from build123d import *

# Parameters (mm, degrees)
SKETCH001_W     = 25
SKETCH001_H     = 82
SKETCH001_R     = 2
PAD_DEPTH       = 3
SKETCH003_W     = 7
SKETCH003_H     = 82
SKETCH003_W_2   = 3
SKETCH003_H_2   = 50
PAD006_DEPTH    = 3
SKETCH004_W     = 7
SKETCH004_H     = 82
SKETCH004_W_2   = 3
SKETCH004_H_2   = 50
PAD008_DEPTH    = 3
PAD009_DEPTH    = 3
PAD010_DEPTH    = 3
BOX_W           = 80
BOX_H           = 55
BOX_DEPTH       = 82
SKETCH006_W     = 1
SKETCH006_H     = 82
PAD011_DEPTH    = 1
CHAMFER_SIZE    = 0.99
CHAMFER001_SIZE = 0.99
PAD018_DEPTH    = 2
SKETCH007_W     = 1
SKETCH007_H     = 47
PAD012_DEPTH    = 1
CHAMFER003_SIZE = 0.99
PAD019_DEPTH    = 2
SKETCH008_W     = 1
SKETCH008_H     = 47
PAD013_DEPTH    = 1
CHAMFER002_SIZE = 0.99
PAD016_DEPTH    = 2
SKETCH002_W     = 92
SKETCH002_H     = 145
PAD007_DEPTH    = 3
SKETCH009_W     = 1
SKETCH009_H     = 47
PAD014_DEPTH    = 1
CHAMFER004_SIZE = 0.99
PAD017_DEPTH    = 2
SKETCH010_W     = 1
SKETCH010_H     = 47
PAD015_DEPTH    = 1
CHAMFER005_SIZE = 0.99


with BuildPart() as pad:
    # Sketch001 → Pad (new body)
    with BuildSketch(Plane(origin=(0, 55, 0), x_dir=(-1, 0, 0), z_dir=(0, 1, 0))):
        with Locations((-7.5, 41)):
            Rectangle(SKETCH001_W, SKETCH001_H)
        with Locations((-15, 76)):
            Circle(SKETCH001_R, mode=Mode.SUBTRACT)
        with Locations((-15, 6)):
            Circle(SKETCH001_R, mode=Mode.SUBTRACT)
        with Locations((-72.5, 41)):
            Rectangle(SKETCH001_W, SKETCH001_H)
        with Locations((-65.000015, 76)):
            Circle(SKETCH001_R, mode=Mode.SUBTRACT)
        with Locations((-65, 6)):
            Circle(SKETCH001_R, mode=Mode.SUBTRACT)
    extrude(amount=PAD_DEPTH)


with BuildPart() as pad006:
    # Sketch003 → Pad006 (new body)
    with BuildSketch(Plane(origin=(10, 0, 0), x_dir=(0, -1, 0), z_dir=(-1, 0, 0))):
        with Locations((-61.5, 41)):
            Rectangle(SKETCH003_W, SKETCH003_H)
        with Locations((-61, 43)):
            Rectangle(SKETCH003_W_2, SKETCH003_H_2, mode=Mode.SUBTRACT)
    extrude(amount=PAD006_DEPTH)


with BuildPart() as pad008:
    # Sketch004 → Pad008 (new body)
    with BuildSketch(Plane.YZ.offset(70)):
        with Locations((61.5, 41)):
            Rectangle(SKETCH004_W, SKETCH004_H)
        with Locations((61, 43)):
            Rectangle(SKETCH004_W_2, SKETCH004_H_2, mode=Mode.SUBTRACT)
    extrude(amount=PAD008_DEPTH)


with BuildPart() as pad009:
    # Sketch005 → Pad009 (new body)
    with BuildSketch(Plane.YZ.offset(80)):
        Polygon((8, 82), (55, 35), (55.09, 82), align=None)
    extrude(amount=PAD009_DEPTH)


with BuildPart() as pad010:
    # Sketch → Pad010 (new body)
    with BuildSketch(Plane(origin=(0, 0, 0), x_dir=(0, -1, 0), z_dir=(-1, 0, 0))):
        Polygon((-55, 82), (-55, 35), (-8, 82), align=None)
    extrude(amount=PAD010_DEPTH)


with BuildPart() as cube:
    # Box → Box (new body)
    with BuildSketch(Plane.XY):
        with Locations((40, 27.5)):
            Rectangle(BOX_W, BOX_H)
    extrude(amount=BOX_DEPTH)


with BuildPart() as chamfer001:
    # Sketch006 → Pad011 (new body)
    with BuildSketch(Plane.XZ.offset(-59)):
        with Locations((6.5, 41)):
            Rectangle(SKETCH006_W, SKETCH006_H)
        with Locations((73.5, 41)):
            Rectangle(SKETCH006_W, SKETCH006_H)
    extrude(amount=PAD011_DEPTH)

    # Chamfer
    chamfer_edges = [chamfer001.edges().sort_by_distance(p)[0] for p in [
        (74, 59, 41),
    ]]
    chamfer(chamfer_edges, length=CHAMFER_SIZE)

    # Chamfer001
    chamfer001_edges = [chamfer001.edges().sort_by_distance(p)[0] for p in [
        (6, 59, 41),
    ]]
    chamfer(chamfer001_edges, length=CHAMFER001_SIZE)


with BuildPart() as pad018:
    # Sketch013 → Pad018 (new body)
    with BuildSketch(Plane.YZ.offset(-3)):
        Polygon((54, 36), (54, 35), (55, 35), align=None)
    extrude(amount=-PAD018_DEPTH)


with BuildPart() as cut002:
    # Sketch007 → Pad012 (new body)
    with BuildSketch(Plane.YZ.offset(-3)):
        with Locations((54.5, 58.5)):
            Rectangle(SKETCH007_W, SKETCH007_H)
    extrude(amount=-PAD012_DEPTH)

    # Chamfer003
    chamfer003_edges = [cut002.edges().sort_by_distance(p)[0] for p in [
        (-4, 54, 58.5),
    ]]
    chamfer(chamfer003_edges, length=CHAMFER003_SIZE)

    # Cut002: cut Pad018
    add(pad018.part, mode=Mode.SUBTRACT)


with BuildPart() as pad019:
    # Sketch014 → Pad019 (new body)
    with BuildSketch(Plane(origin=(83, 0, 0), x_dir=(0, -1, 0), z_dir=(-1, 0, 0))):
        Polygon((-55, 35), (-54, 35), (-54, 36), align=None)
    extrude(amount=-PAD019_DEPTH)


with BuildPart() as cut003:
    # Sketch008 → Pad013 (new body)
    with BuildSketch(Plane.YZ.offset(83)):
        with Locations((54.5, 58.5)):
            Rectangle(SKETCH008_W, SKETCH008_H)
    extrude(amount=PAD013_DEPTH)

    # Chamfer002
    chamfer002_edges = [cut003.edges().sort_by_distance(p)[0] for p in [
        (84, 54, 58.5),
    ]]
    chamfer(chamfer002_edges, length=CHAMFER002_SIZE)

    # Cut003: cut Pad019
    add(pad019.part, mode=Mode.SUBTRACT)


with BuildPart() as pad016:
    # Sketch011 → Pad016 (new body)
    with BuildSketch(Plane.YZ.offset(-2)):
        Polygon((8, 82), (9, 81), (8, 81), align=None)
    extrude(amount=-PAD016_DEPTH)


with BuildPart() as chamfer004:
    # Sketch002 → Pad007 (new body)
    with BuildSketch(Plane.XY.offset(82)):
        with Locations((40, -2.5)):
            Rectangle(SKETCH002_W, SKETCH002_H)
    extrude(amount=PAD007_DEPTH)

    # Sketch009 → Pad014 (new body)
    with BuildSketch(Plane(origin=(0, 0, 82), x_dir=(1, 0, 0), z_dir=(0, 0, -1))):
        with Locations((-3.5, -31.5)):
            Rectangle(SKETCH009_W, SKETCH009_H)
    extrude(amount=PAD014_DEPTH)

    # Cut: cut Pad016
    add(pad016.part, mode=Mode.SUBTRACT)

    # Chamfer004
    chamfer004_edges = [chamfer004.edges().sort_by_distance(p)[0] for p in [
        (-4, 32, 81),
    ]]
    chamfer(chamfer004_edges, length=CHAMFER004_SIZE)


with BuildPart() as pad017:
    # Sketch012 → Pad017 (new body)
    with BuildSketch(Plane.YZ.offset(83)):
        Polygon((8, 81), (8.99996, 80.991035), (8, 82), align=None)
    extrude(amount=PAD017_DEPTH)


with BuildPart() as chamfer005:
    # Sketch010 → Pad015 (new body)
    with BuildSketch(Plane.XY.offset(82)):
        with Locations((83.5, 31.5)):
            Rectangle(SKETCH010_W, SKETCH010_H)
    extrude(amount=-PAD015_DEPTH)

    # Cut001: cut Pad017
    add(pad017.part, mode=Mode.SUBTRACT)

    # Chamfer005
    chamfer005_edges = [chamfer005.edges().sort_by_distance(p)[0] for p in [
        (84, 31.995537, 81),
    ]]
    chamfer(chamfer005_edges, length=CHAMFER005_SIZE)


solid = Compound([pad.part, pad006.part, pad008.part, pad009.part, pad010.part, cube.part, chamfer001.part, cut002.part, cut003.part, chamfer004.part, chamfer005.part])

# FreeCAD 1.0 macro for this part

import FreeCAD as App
import Part
import Sketcher

V = App.Vector
Q = App.Units.Quantity


def edges_at(feature, points):
    """Names of the edges that pass closest to the given points."""
    edges = feature.Shape.Edges
    near = lambda p: min(range(len(edges)), key=lambda i: edges[i].distToShape(Part.Vertex(*p))[0])
    return sorted({f"Edge{near(p) + 1}" for p in points})


def add_polygon(sketch, points):
    """Adds a closed chain of lines whose ends are joined by coincident constraints."""
    first, n = sketch.GeometryCount, len(points)
    for a, b in zip(points, points[1:] + points[:1]):
        sketch.addGeometry(Part.LineSegment(App.Vector(*a, 0), App.Vector(*b, 0)), False)
    for i in range(n):
        sketch.addConstraint(Sketcher.Constraint("Coincident", first + i, 2, first + (i + 1) % n, 1))

doc = App.newDocument("Part")
body = doc.addObject("PartDesign::Body", "Body")
body.AllowCompound = True

sketch1 = body.newObject("Sketcher::SketchObject", "Sketch")
sketch1.AttachmentSupport = (doc.getObject("XZ_Plane"), [""])
sketch1.MapMode = "FlatFace"
sketch1.AttachmentOffset = App.Placement(V(0, 0, -55), App.Rotation())
add_polygon(sketch1, [(20, 82), (20, 0), (-5, 0), (-5, 82)])
sketch1.addGeometry(Part.Circle(V(15, 6, 0), V(0, 0, 1), 2), False)
sketch1.addGeometry(Part.Circle(V(15, 76, 0), V(0, 0, 1), 2), False)
add_polygon(sketch1, [(85, 82), (85, 0), (60, 0), (60, 82)])
sketch1.addGeometry(Part.Circle(V(65, 6, 0), V(0, 0, 1), 2), False)
sketch1.addGeometry(Part.Circle(V(65, 76, 0), V(0, 0, 1), 2), False)
sketch1.addConstraint([
    Sketcher.Constraint("Vertical", 0),
    Sketcher.Constraint("Horizontal", 1),
    Sketcher.Constraint("Vertical", 2),
    Sketcher.Constraint("Horizontal", 3),
    Sketcher.Constraint("Vertical", 6),
    Sketcher.Constraint("Horizontal", 7),
    Sketcher.Constraint("Vertical", 8),
    Sketcher.Constraint("Horizontal", 9),
    Sketcher.Constraint("Equal", 4, 5),
    Sketcher.Constraint("Equal", 5, 10),
    Sketcher.Constraint("Equal", 10, 11),
    Sketcher.Constraint("PointOnObject", 0, 2, -1),
    Sketcher.Constraint("PointOnObject", 6, 2, -1),
    Sketcher.Constraint("Horizontal", 4, 3, 10, 3),
    Sketcher.Constraint("Horizontal", 5, 3, 11, 3),
    Sketcher.Constraint("Horizontal", 3, 2, 8, 2),
    Sketcher.Constraint("Vertical", 4, 3, 5, 3),
    Sketcher.Constraint("Equal", 3, 7),
    Sketcher.Constraint("Diameter", 4, 4.0),
    Sketcher.Constraint("DistanceX", 1, 2, 1, 1, 25.0),
    Sketcher.Constraint("DistanceY", 0, 2, 0, 1, 82.0),
    Sketcher.Constraint("DistanceX", -1, 1, 4, 3, 15.0),
    Sketcher.Constraint("DistanceY", -1, 1, 4, 3, 6.0),
    Sketcher.Constraint("DistanceY", -1, 1, 5, 3, 76.0),
    Sketcher.Constraint("DistanceX", -1, 1, 10, 3, 65.0),
    Sketcher.Constraint("DistanceX", -1, 1, 0, 2, 20.0),
    Sketcher.Constraint("DistanceX", -1, 1, 6, 2, 85.0),
    Sketcher.Constraint("DistanceX", -1, 1, 11, 3, 65.000015),
])
pad1 = body.newObject("PartDesign::Pad", "Pad")
pad1.Profile = sketch1
pad1.Length = 3
pad1.Reversed = True
body2 = doc.addObject("PartDesign::Body", "Body001")

sketch2 = body2.newObject("Sketcher::SketchObject", "Sketch001")
sketch2.AttachmentSupport = (doc.getObject("YZ_Plane001"), [""])
sketch2.MapMode = "FlatFace"
sketch2.AttachmentOffset = App.Placement(V(0, 0, 10), App.Rotation())
add_polygon(sketch2, [(65, 82), (65, 0), (58, 0), (58, 82)])
add_polygon(sketch2, [(59.5, 18), (62.5, 18), (62.5, 68), (59.5, 68)])
sketch2.addConstraint([
    Sketcher.Constraint("Vertical", 0),
    Sketcher.Constraint("Horizontal", 1),
    Sketcher.Constraint("Vertical", 2),
    Sketcher.Constraint("Horizontal", 3),
    Sketcher.Constraint("Horizontal", 4),
    Sketcher.Constraint("Vertical", 5),
    Sketcher.Constraint("Horizontal", 6),
    Sketcher.Constraint("Vertical", 7),
    Sketcher.Constraint("PointOnObject", 0, 2, -1),
    Sketcher.Constraint("DistanceX", 1, 2, 1, 1, 7.0),
    Sketcher.Constraint("DistanceX", 4, 1, 4, 2, 3.0),
    Sketcher.Constraint("DistanceY", 0, 2, 0, 1, 82.0),
    Sketcher.Constraint("DistanceY", 5, 1, 5, 2, 50.0),
    Sketcher.Constraint("DistanceX", -1, 1, 0, 2, 65.0),
    Sketcher.Constraint("DistanceY", -1, 1, 4, 2, 18.0),
    Sketcher.Constraint("DistanceX", -1, 1, 4, 2, 62.5),
])
pad2 = body2.newObject("PartDesign::Pad", "Pad001")
pad2.Profile = sketch2
pad2.Length = 3
pad2.Reversed = True
body3 = doc.addObject("PartDesign::Body", "Body002")

sketch3 = body3.newObject("Sketcher::SketchObject", "Sketch002")
sketch3.AttachmentSupport = (doc.getObject("YZ_Plane002"), [""])
sketch3.MapMode = "FlatFace"
sketch3.AttachmentOffset = App.Placement(V(0, 0, 70), App.Rotation())
add_polygon(sketch3, [(58, 82), (58, 0), (65, 0), (65, 82)])
add_polygon(sketch3, [(62.5, 18), (59.5, 18), (59.5, 68), (62.5, 68)])
sketch3.addConstraint([
    Sketcher.Constraint("Vertical", 0),
    Sketcher.Constraint("Horizontal", 1),
    Sketcher.Constraint("Vertical", 2),
    Sketcher.Constraint("Horizontal", 3),
    Sketcher.Constraint("Horizontal", 4),
    Sketcher.Constraint("Vertical", 5),
    Sketcher.Constraint("Horizontal", 6),
    Sketcher.Constraint("Vertical", 7),
    Sketcher.Constraint("PointOnObject", 0, 2, -1),
    Sketcher.Constraint("DistanceX", 1, 1, 1, 2, 7.0),
    Sketcher.Constraint("DistanceX", 4, 2, 4, 1, 3.0),
    Sketcher.Constraint("DistanceY", 0, 2, 0, 1, 82.0),
    Sketcher.Constraint("DistanceY", 5, 1, 5, 2, 50.0),
    Sketcher.Constraint("DistanceX", -1, 1, 0, 2, 58.0),
    Sketcher.Constraint("DistanceY", -1, 1, 4, 2, 18.0),
    Sketcher.Constraint("DistanceX", -1, 1, 4, 2, 59.5),
])
pad3 = body3.newObject("PartDesign::Pad", "Pad002")
pad3.Profile = sketch3
pad3.Length = 3
body4 = doc.addObject("PartDesign::Body", "Body003")

sketch4 = body4.newObject("Sketcher::SketchObject", "Sketch003")
sketch4.AttachmentSupport = (doc.getObject("YZ_Plane003"), [""])
sketch4.MapMode = "FlatFace"
sketch4.AttachmentOffset = App.Placement(V(0, 0, 80), App.Rotation())
add_polygon(sketch4, [(8, 82), (55, 35), (55, 82)])
sketch4.addConstraint([
    Sketcher.Constraint("Horizontal", 2),
    Sketcher.Constraint("Angle", 0, Q("-45 deg")),
    Sketcher.Constraint("DistanceX", -1, 1, 0, 2, 55.0),
    Sketcher.Constraint("DistanceY", -1, 1, 0, 2, 35.0),
    Sketcher.Constraint("DistanceY", -1, 1, 1, 2, 82.0),
    Sketcher.Constraint("DistanceX", 2, 2, 2, 1, 47.09),
])
pad4 = body4.newObject("PartDesign::Pad", "Pad003")
pad4.Profile = sketch4
pad4.Length = 3
body5 = doc.addObject("PartDesign::Body", "Body004")

sketch5 = body5.newObject("Sketcher::SketchObject", "Sketch004")
sketch5.AttachmentSupport = (doc.getObject("YZ_Plane004"), [""])
sketch5.MapMode = "FlatFace"
add_polygon(sketch5, [(55, 82), (55, 35), (8, 82)])
sketch5.addConstraint([
    Sketcher.Constraint("Vertical", 0),
    Sketcher.Constraint("Horizontal", 2),
    Sketcher.Constraint("Equal", 2, 0),
    Sketcher.Constraint("DistanceX", 2, 1, 2, 2, 47.0),
    Sketcher.Constraint("DistanceX", -1, 1, 0, 2, 55.0),
    Sketcher.Constraint("DistanceY", -1, 1, 0, 2, 35.0),
])
pad5 = body5.newObject("PartDesign::Pad", "Pad004")
pad5.Profile = sketch5
pad5.Length = 3
pad5.Reversed = True
body6 = doc.addObject("PartDesign::Body", "Body005")

sketch6 = body6.newObject("Sketcher::SketchObject", "Sketch005")
sketch6.AttachmentSupport = (doc.getObject("XY_Plane005"), [""])
sketch6.MapMode = "FlatFace"
add_polygon(sketch6, [(0, 55), (0, 0), (80, 0), (80, 55)])
sketch6.addConstraint([
    Sketcher.Constraint("Vertical", 0),
    Sketcher.Constraint("Horizontal", 1),
    Sketcher.Constraint("Vertical", 2),
    Sketcher.Constraint("Horizontal", 3),
    Sketcher.Constraint("Coincident", 0, 2, -1, 1),
    Sketcher.Constraint("DistanceX", 1, 1, 1, 2, 80.0),
    Sketcher.Constraint("DistanceY", 0, 2, 0, 1, 55.0),
])
pad6 = body6.newObject("PartDesign::Pad", "Pad005")
pad6.Profile = sketch6
pad6.Length = 82
body7 = doc.addObject("PartDesign::Body", "Body006")
body7.AllowCompound = True

sketch7 = body7.newObject("Sketcher::SketchObject", "Sketch006")
sketch7.AttachmentSupport = (doc.getObject("XZ_Plane006"), [""])
sketch7.MapMode = "FlatFace"
sketch7.AttachmentOffset = App.Placement(V(0, 0, -59), App.Rotation())
add_polygon(sketch7, [(6, 82), (6, 0), (7, 0), (7, 82)])
add_polygon(sketch7, [(73, 82), (73, 0), (74, 0), (74, 82)])
sketch7.addConstraint([
    Sketcher.Constraint("Vertical", 0),
    Sketcher.Constraint("Horizontal", 1),
    Sketcher.Constraint("Vertical", 2),
    Sketcher.Constraint("Horizontal", 3),
    Sketcher.Constraint("Vertical", 4),
    Sketcher.Constraint("Horizontal", 5),
    Sketcher.Constraint("Vertical", 6),
    Sketcher.Constraint("Horizontal", 7),
    Sketcher.Constraint("PointOnObject", 0, 2, -1),
    Sketcher.Constraint("PointOnObject", 4, 2, -1),
    Sketcher.Constraint("Horizontal", 3, 2, 6, 2),
    Sketcher.Constraint("Equal", 3, 5),
    Sketcher.Constraint("DistanceX", 1, 1, 1, 2, 1.0),
    Sketcher.Constraint("DistanceY", 0, 2, 0, 1, 82.0),
    Sketcher.Constraint("DistanceX", -1, 1, 0, 2, 6.0),
    Sketcher.Constraint("DistanceX", -1, 1, 4, 2, 73.0),
])
pad7 = body7.newObject("PartDesign::Pad", "Pad006")
pad7.Profile = sketch7
pad7.Length = 1
doc.recompute()

chamfer = body7.newObject("PartDesign::Chamfer", "Chamfer")
chamfer.Base = (pad7, edges_at(pad7, [(74, 59, 41)]))
chamfer.Size = 0.99
doc.recompute()

chamfer2 = body7.newObject("PartDesign::Chamfer", "Chamfer001")
chamfer2.Base = (chamfer, edges_at(chamfer, [(6, 59, 41)]))
chamfer2.Size = 0.99
body8 = doc.addObject("PartDesign::Body", "Body007")

sketch8 = body8.newObject("Sketcher::SketchObject", "Sketch007")
sketch8.AttachmentSupport = (doc.getObject("YZ_Plane007"), [""])
sketch8.MapMode = "FlatFace"
sketch8.AttachmentOffset = App.Placement(V(0, 0, -3), App.Rotation())
add_polygon(sketch8, [(54, 36), (54, 35), (55, 35)])
sketch8.addConstraint([
    Sketcher.Constraint("Vertical", 0),
    Sketcher.Constraint("Horizontal", 1),
    Sketcher.Constraint("Equal", 1, 0),
    Sketcher.Constraint("DistanceX", 1, 1, 1, 2, 1.0),
    Sketcher.Constraint("DistanceX", -1, 1, 0, 2, 54.0),
    Sketcher.Constraint("DistanceY", -1, 1, 0, 2, 35.0),
])
pad8 = body8.newObject("PartDesign::Pad", "Pad007")
pad8.Profile = sketch8
pad8.Length = 2
pad8.Reversed = True
body9 = doc.addObject("PartDesign::Body", "Body008")

sketch9 = body9.newObject("Sketcher::SketchObject", "Sketch008")
sketch9.AttachmentSupport = (doc.getObject("YZ_Plane008"), [""])
sketch9.MapMode = "FlatFace"
sketch9.AttachmentOffset = App.Placement(V(0, 0, -3), App.Rotation())
add_polygon(sketch9, [(54, 82), (54, 35), (55, 35), (55, 82)])
sketch9.addConstraint([
    Sketcher.Constraint("Vertical", 0),
    Sketcher.Constraint("Horizontal", 1),
    Sketcher.Constraint("Vertical", 2),
    Sketcher.Constraint("Horizontal", 3),
    Sketcher.Constraint("DistanceX", 1, 1, 1, 2, 1.0),
    Sketcher.Constraint("DistanceY", 0, 2, 0, 1, 47.0),
    Sketcher.Constraint("DistanceX", -1, 1, 0, 2, 54.0),
    Sketcher.Constraint("DistanceY", -1, 1, 0, 2, 35.0),
])
pad9 = body9.newObject("PartDesign::Pad", "Pad008")
pad9.Profile = sketch9
pad9.Length = 1
pad9.Reversed = True
doc.recompute()

chamfer3 = body9.newObject("PartDesign::Chamfer", "Chamfer002")
chamfer3.Base = (pad9, edges_at(pad9, [(-4, 54, 58.5)]))
chamfer3.Size = 0.99
doc.recompute()

boolean = body9.newObject("PartDesign::Boolean", "Boolean")
boolean.Type = "Cut"
boolean.addObjects([body8])
body10 = doc.addObject("PartDesign::Body", "Body009")

sketch10 = body10.newObject("Sketcher::SketchObject", "Sketch009")
sketch10.AttachmentSupport = (doc.getObject("YZ_Plane009"), [""])
sketch10.MapMode = "FlatFace"
sketch10.AttachmentOffset = App.Placement(V(0, 0, 83), App.Rotation())
add_polygon(sketch10, [(55, 35), (54, 35), (54, 36)])
sketch10.addConstraint([
    Sketcher.Constraint("Horizontal", 0),
    Sketcher.Constraint("Vertical", 1),
    Sketcher.Constraint("Equal", 0, 1),
    Sketcher.Constraint("DistanceX", 0, 2, 0, 1, 1.0),
    Sketcher.Constraint("DistanceX", -1, 1, 0, 2, 54.0),
    Sketcher.Constraint("DistanceY", -1, 1, 0, 2, 35.0),
])
pad10 = body10.newObject("PartDesign::Pad", "Pad009")
pad10.Profile = sketch10
pad10.Length = 2
body11 = doc.addObject("PartDesign::Body", "Body010")

sketch11 = body11.newObject("Sketcher::SketchObject", "Sketch010")
sketch11.AttachmentSupport = (doc.getObject("YZ_Plane010"), [""])
sketch11.MapMode = "FlatFace"
sketch11.AttachmentOffset = App.Placement(V(0, 0, 83), App.Rotation())
add_polygon(sketch11, [(54, 82), (54, 35), (55, 35), (55, 82)])
sketch11.addConstraint([
    Sketcher.Constraint("Vertical", 0),
    Sketcher.Constraint("Horizontal", 1),
    Sketcher.Constraint("Vertical", 2),
    Sketcher.Constraint("Horizontal", 3),
    Sketcher.Constraint("DistanceX", 1, 1, 1, 2, 1.0),
    Sketcher.Constraint("DistanceY", 0, 2, 0, 1, 47.0),
    Sketcher.Constraint("DistanceX", -1, 1, 0, 2, 54.0),
    Sketcher.Constraint("DistanceY", -1, 1, 0, 2, 35.0),
])
pad11 = body11.newObject("PartDesign::Pad", "Pad010")
pad11.Profile = sketch11
pad11.Length = 1
doc.recompute()

chamfer4 = body11.newObject("PartDesign::Chamfer", "Chamfer003")
chamfer4.Base = (pad11, edges_at(pad11, [(84, 54, 58.5)]))
chamfer4.Size = 0.99
doc.recompute()

boolean2 = body11.newObject("PartDesign::Boolean", "Boolean001")
boolean2.Type = "Cut"
boolean2.addObjects([body10])
body12 = doc.addObject("PartDesign::Body", "Body011")

sketch12 = body12.newObject("Sketcher::SketchObject", "Sketch011")
sketch12.AttachmentSupport = (doc.getObject("YZ_Plane011"), [""])
sketch12.MapMode = "FlatFace"
sketch12.AttachmentOffset = App.Placement(V(0, 0, -2), App.Rotation())
add_polygon(sketch12, [(9, 81), (8, 82), (8, 81)])
sketch12.addConstraint([
    Sketcher.Constraint("Vertical", 1),
    Sketcher.Constraint("Horizontal", 2),
    Sketcher.Constraint("Equal", 2, 1),
    Sketcher.Constraint("DistanceX", 2, 1, 2, 2, 1.0),
    Sketcher.Constraint("DistanceX", -1, 1, 0, 2, 8.0),
    Sketcher.Constraint("DistanceY", -1, 1, 0, 2, 82.0),
])
pad12 = body12.newObject("PartDesign::Pad", "Pad011")
pad12.Profile = sketch12
pad12.Length = 2
pad12.Reversed = True
body13 = doc.addObject("PartDesign::Body", "Body012")

sketch13 = body13.newObject("Sketcher::SketchObject", "Sketch012")
sketch13.AttachmentSupport = (doc.getObject("XY_Plane012"), [""])
sketch13.MapMode = "FlatFace"
sketch13.AttachmentOffset = App.Placement(V(0, 0, 82), App.Rotation())
add_polygon(sketch13, [(-6, 70), (-6, -75), (86, -75), (86, 70)])
sketch13.addConstraint([
    Sketcher.Constraint("Vertical", 0),
    Sketcher.Constraint("Horizontal", 1),
    Sketcher.Constraint("Vertical", 2),
    Sketcher.Constraint("Horizontal", 3),
    Sketcher.Constraint("DistanceX", 1, 1, 1, 2, 92.0),
    Sketcher.Constraint("DistanceY", 0, 2, 0, 1, 145.0),
    Sketcher.Constraint("DistanceX", 0, 2, -1, 1, 6.0),
    Sketcher.Constraint("DistanceY", 0, 2, -1, 1, 75.0),
])
pad13 = body13.newObject("PartDesign::Pad", "Pad012")
pad13.Profile = sketch13
pad13.Length = 3

sketch14 = body13.newObject("Sketcher::SketchObject", "Sketch013")
sketch14.AttachmentSupport = (doc.getObject("XY_Plane012"), [""])
sketch14.MapMode = "FlatFace"
sketch14.AttachmentOffset = App.Placement(V(0, 0, 82), App.Rotation())
add_polygon(sketch14, [(-4, 8), (-4, 55), (-3, 55), (-3, 8)])
sketch14.addConstraint([
    Sketcher.Constraint("Vertical", 0),
    Sketcher.Constraint("Horizontal", 1),
    Sketcher.Constraint("Vertical", 2),
    Sketcher.Constraint("Horizontal", 3),
    Sketcher.Constraint("DistanceX", 1, 1, 1, 2, 1.0),
    Sketcher.Constraint("DistanceY", 0, 1, 0, 2, 47.0),
    Sketcher.Constraint("DistanceX", 0, 2, -1, 1, 4.0),
    Sketcher.Constraint("DistanceY", -1, 1, 0, 2, 55.0),
])
pad14 = body13.newObject("PartDesign::Pad", "Pad013")
pad14.Profile = sketch14
pad14.Length = 1
pad14.Reversed = True
doc.recompute()

boolean3 = body13.newObject("PartDesign::Boolean", "Boolean002")
boolean3.Type = "Cut"
boolean3.addObjects([body12])
doc.recompute()

chamfer5 = body13.newObject("PartDesign::Chamfer", "Chamfer004")
chamfer5.Base = (boolean3, edges_at(boolean3, [(-4, 32, 81)]))
chamfer5.Size = 0.99
body14 = doc.addObject("PartDesign::Body", "Body013")

sketch15 = body14.newObject("Sketcher::SketchObject", "Sketch014")
sketch15.AttachmentSupport = (doc.getObject("YZ_Plane013"), [""])
sketch15.MapMode = "FlatFace"
sketch15.AttachmentOffset = App.Placement(V(0, 0, 83), App.Rotation())
add_polygon(sketch15, [(8, 81), (9, 81), (8, 82)])
sketch15.addConstraint([
    Sketcher.Constraint("Vertical", 2),
    Sketcher.Constraint("DistanceY", 2, 2, 2, 1, 1.0),
    Sketcher.Constraint("Distance", 0, 1.0),
    Sketcher.Constraint("DistanceX", -1, 1, 1, 2, 8.0),
    Sketcher.Constraint("DistanceY", -1, 1, 1, 2, 82.0),
    Sketcher.Constraint("Distance", 1, 1.420539),
])
pad15 = body14.newObject("PartDesign::Pad", "Pad014")
pad15.Profile = sketch15
pad15.Length = 2
body15 = doc.addObject("PartDesign::Body", "Body014")

sketch16 = body15.newObject("Sketcher::SketchObject", "Sketch015")
sketch16.AttachmentSupport = (doc.getObject("XY_Plane014"), [""])
sketch16.MapMode = "FlatFace"
sketch16.AttachmentOffset = App.Placement(V(0, 0, 82), App.Rotation())
add_polygon(sketch16, [(83, 55), (83, 8), (84, 8), (84, 55)])
sketch16.addConstraint([
    Sketcher.Constraint("Vertical", 0),
    Sketcher.Constraint("Horizontal", 1),
    Sketcher.Constraint("Vertical", 2),
    Sketcher.Constraint("Horizontal", 3),
    Sketcher.Constraint("DistanceX", 1, 1, 1, 2, 1.0),
    Sketcher.Constraint("DistanceY", 0, 2, 0, 1, 47.0),
    Sketcher.Constraint("DistanceX", -1, 1, 0, 2, 83.0),
    Sketcher.Constraint("DistanceY", -1, 1, 0, 2, 8.0),
])
pad16 = body15.newObject("PartDesign::Pad", "Pad015")
pad16.Profile = sketch16
pad16.Length = 1
pad16.Reversed = True
doc.recompute()

boolean4 = body15.newObject("PartDesign::Boolean", "Boolean003")
boolean4.Type = "Cut"
boolean4.addObjects([body14])
doc.recompute()

chamfer6 = body15.newObject("PartDesign::Chamfer", "Chamfer005")
chamfer6.Base = (boolean4, edges_at(boolean4, [(84, 31.996, 81)]))
chamfer6.Size = 0.99

doc.recompute()
